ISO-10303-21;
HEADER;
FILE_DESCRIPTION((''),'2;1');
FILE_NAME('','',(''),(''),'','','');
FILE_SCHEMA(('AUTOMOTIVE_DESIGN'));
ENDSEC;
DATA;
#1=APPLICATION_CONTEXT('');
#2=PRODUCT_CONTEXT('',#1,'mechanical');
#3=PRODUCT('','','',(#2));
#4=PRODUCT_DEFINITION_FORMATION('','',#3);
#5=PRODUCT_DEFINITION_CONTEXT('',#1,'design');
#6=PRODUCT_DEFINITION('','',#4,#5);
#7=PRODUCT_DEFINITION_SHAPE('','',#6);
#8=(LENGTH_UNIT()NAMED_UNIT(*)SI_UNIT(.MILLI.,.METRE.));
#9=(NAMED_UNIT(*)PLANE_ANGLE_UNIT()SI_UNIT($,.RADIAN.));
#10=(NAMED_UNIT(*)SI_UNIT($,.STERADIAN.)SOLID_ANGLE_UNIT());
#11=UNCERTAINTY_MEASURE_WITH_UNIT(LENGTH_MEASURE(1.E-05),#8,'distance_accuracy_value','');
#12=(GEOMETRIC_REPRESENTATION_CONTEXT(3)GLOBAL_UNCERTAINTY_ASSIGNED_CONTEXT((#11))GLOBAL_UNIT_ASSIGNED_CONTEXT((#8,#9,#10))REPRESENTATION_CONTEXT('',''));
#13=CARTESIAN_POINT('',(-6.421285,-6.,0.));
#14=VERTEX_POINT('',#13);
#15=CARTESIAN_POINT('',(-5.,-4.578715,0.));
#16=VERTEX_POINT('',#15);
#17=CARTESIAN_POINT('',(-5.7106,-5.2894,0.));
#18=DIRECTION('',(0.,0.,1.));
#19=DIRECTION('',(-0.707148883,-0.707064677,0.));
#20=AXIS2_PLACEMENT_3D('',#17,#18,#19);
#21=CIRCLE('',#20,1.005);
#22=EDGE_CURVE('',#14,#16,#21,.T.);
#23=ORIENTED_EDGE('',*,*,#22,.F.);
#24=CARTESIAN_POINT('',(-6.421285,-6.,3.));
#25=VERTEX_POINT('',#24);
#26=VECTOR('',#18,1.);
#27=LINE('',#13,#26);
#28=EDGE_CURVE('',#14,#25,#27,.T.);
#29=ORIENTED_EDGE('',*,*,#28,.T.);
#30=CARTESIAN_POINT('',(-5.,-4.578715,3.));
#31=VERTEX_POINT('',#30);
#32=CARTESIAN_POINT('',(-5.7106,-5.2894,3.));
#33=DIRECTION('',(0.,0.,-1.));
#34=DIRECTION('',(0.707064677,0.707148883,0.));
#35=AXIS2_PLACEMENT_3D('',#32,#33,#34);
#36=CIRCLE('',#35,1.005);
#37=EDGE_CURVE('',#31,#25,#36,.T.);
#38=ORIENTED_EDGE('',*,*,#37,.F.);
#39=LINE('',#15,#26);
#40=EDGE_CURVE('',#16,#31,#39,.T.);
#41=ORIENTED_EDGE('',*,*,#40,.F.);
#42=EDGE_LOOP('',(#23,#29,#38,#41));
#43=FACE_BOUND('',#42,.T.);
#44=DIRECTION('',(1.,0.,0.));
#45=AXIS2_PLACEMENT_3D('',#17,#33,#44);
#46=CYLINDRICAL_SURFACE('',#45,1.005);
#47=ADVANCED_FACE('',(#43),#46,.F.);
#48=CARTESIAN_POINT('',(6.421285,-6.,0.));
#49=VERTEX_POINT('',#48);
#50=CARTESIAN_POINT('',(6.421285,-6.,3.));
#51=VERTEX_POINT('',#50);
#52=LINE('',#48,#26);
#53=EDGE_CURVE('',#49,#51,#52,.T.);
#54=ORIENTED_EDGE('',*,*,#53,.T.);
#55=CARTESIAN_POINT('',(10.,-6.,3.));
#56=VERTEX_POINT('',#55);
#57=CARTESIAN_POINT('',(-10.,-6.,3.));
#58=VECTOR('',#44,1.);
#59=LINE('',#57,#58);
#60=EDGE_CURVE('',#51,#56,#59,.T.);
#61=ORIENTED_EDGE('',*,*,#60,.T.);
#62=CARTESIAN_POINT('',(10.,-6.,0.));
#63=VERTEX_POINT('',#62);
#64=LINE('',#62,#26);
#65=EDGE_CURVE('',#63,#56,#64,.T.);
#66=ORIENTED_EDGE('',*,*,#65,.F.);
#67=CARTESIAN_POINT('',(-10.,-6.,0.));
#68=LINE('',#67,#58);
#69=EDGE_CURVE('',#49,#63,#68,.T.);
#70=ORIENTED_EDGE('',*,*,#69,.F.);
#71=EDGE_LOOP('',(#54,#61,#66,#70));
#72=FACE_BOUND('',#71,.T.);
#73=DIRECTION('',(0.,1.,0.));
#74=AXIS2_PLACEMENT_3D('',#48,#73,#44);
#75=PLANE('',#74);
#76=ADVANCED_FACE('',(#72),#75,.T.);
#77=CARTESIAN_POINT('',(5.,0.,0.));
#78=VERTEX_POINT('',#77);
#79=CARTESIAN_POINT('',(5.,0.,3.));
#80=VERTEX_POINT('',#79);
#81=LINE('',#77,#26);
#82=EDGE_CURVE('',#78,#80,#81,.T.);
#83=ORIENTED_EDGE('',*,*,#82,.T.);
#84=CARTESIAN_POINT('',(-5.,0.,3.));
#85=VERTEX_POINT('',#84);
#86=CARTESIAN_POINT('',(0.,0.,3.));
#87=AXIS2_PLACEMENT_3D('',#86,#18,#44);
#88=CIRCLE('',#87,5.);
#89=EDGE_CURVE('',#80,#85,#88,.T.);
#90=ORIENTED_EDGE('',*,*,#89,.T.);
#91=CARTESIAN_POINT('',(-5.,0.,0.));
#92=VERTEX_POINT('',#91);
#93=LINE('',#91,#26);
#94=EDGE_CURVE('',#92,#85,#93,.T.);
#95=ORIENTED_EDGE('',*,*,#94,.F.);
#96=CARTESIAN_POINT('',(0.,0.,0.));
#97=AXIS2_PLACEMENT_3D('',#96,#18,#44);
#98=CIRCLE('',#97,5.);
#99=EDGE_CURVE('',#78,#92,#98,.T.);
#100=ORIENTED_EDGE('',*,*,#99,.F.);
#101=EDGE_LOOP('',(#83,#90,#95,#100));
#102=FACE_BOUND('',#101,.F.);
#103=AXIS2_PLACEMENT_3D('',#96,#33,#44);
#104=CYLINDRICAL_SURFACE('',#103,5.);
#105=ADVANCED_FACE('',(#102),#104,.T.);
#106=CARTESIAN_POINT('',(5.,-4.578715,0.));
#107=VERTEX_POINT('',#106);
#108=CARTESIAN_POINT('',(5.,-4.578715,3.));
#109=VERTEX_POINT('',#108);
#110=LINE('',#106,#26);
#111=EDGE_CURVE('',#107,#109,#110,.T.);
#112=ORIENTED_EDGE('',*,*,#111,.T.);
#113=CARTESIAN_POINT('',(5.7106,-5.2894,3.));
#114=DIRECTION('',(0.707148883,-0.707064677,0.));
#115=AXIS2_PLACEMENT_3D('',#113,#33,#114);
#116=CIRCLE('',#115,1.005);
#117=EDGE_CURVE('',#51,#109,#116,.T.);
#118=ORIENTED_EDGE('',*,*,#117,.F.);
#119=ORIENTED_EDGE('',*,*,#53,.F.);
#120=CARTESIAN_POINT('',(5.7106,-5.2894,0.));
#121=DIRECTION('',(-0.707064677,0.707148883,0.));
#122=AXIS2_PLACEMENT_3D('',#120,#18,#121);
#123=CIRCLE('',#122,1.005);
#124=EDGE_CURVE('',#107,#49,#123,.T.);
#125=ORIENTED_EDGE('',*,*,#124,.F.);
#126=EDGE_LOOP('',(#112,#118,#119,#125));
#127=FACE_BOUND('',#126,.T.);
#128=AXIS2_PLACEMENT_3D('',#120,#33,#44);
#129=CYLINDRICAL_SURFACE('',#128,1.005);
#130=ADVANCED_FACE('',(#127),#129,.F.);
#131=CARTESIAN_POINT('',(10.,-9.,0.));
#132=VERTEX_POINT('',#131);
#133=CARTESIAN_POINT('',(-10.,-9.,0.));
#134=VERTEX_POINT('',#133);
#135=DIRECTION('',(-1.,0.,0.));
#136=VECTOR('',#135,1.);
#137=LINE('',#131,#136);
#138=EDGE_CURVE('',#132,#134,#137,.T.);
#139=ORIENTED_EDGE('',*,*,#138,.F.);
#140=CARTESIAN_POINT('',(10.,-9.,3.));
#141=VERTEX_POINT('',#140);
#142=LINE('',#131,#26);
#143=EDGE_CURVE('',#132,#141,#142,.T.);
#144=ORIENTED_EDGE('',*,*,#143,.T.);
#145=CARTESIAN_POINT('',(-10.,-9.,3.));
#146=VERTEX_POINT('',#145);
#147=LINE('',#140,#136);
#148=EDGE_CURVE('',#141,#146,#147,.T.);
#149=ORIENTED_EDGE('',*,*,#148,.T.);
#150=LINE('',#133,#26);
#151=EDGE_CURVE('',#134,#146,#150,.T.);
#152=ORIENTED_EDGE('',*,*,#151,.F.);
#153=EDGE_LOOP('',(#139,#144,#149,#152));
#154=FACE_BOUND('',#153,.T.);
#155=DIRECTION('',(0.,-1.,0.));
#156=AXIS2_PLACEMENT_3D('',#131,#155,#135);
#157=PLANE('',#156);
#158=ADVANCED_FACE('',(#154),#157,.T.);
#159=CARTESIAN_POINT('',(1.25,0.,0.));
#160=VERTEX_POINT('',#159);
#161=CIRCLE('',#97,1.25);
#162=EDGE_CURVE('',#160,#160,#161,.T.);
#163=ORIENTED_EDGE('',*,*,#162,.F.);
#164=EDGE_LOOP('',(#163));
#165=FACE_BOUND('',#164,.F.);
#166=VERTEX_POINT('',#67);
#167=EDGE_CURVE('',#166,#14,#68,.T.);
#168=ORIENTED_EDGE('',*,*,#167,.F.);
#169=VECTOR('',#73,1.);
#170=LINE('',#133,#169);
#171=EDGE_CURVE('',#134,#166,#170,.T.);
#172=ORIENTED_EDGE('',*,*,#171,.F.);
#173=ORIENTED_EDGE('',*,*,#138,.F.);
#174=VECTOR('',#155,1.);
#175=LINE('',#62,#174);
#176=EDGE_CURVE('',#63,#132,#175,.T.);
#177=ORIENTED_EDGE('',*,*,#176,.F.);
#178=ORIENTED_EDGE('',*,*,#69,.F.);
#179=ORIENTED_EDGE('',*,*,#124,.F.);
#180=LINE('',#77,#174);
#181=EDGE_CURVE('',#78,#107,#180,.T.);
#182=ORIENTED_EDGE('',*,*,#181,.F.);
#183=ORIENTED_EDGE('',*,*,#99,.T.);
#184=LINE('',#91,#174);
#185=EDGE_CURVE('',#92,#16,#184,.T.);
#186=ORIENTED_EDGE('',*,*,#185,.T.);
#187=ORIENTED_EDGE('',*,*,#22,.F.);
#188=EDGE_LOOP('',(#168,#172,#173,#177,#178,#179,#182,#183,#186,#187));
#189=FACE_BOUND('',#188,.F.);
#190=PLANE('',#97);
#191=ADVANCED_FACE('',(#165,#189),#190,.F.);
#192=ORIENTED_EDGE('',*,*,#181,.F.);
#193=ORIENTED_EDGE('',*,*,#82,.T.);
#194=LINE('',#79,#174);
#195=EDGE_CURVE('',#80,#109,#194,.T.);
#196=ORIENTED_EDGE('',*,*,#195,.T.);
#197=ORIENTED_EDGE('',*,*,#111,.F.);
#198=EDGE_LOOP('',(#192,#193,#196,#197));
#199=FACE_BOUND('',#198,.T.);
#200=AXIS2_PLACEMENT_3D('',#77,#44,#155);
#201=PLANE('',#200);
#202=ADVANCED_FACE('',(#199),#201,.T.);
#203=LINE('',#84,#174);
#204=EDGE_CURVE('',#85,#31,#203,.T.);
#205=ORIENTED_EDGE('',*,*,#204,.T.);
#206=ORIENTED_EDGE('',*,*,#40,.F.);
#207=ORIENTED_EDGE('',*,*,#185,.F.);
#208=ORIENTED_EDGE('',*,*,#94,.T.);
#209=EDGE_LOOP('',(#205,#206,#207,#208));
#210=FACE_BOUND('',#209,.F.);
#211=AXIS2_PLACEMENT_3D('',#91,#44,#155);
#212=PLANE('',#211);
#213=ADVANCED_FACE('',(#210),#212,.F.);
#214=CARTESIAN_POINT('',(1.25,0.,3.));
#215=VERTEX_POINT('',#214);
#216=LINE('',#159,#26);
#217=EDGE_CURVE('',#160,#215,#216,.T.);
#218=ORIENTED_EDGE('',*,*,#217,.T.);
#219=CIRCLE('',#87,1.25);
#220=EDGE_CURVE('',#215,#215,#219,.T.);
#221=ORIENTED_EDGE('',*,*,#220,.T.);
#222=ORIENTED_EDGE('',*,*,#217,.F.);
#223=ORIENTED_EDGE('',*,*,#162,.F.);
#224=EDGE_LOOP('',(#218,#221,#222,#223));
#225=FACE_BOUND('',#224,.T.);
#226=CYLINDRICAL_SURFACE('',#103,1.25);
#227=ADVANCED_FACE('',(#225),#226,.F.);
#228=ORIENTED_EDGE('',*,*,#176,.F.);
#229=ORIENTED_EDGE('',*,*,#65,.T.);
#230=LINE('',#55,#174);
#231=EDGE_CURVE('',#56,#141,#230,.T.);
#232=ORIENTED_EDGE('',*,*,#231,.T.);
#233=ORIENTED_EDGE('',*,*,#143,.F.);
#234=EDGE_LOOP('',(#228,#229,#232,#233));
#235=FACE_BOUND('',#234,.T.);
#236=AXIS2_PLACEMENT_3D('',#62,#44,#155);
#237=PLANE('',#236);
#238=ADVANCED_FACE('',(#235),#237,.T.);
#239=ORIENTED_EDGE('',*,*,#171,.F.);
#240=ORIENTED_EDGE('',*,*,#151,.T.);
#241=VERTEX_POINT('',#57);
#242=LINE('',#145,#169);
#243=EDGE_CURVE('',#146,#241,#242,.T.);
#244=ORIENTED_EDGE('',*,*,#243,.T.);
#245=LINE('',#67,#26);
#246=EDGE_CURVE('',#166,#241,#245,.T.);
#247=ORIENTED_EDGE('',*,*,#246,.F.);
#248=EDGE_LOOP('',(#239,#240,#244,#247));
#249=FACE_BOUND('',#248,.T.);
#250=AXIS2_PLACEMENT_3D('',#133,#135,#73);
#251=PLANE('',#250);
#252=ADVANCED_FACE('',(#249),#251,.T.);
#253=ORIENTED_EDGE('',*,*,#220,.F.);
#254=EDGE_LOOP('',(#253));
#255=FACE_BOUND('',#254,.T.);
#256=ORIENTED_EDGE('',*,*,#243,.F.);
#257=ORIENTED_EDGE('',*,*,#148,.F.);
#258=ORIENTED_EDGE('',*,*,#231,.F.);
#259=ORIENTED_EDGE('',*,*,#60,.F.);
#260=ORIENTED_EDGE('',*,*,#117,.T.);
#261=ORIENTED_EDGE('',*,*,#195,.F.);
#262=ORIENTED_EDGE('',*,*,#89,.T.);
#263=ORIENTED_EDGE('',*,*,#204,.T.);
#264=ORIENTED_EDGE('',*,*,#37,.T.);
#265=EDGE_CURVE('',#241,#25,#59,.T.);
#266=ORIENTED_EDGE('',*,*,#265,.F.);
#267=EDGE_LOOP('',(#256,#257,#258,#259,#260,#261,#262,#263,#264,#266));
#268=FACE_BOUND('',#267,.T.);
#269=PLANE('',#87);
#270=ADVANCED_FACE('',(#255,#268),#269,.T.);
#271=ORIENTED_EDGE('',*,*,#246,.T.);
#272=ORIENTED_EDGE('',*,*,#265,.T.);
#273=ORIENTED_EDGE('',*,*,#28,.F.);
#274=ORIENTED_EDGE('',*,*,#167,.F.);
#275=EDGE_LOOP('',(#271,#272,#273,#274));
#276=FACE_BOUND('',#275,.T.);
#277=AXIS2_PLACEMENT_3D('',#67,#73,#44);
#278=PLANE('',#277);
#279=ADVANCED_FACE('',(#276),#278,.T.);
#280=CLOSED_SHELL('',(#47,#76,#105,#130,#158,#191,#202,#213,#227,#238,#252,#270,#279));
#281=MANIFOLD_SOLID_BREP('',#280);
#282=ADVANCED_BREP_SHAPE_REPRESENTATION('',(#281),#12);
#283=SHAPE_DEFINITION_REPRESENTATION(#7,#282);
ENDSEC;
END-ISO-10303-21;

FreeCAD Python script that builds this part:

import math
import FreeCAD as App
import Part
import Sketcher

V = App.Vector

doc = App.newDocument("Part")
params = doc.addObject("Spreadsheet::Sheet", "Params")
for row, (alias, value) in enumerate([
    ("sketch1_radius", "5 mm"),
    ("sketch1_diameter", "2.5 mm"),
    ("sketch1_width", "20 mm"),
    ("sketch1_height", "3 mm"),
    ("pad1_length", "3 mm"),
], start=1):
    params.set(f"A{row}", alias)
    params.set(f"B{row}", "=" + value)
    params.setAlias(f"B{row}", alias)

body = doc.addObject("PartDesign::Body", "Body")

sketch1 = doc.addObject("Sketcher::SketchObject", "Sketch")
body.addObject(sketch1)
sketch1.AttachmentSupport = (doc.XY_Plane, [""])
sketch1.MapMode = "FlatFace"
sketch1.addGeometry([
    Part.ArcOfCircle(Part.Circle(V(0, 0, 0), V(0, 0, 1), 5), math.radians(0), math.radians(180)),
    Part.LineSegment(V(-5, 0, 0), V(-5, -4.578715, 0)),
    Part.ArcOfCircle(Part.Circle(V(-5.7106, -5.2894, 0), V(0, 0, 1), 1.005), math.radians(-135.003412), math.radians(45.003412)),
    Part.LineSegment(V(-6.421285, -6, 0), V(-10, -6, 0)),
    Part.LineSegment(V(-10, -6, 0), V(-10, -9, 0)),
    Part.LineSegment(V(-10, -9, 0), V(10, -9, 0)),
    Part.LineSegment(V(10, -9, 0), V(10, -6, 0)),
    Part.LineSegment(V(10, -6, 0), V(6.421285, -6, 0)),
    Part.ArcOfCircle(Part.Circle(V(5.7106, -5.2894, 0), V(0, 0, 1), 1.005), math.radians(134.996588), math.radians(315.003412)),
    Part.LineSegment(V(5, -4.578715, 0), V(5, 0, 0)),
    Part.Circle(V(0, 0, 0), V(0, 0, 1), 1.25),
], False)
sketch1.addConstraint([
    Sketcher.Constraint("Tangent", 0, 2, 1, 1),
    Sketcher.Constraint("Coincident", 1, 2, 2, 2),
    Sketcher.Constraint("Coincident", 2, 1, 3, 1),
    Sketcher.Constraint("Coincident", 3, 2, 4, 1),
    Sketcher.Constraint("Coincident", 4, 2, 5, 1),
    Sketcher.Constraint("Coincident", 5, 2, 6, 1),
    Sketcher.Constraint("Coincident", 6, 2, 7, 1),
    Sketcher.Constraint("Coincident", 7, 2, 8, 2),
    Sketcher.Constraint("Coincident", 8, 1, 9, 1),
    Sketcher.Constraint("Tangent", 9, 2, 0, 1),
    Sketcher.Constraint("Vertical", 1),
    Sketcher.Constraint("Horizontal", 3),
    Sketcher.Constraint("Vertical", 4),
    Sketcher.Constraint("Horizontal", 5),
    Sketcher.Constraint("Vertical", 6),
    Sketcher.Constraint("Horizontal", 7),
    Sketcher.Constraint("Vertical", 9),
    Sketcher.Constraint("Coincident", 0, 3, -1, 1),
    Sketcher.Constraint("Coincident", 10, 3, -1, 1),
    Sketcher.Constraint("Equal", 2, 8),
    Sketcher.Constraint("Symmetric", 2, 3, 8, 3, -2),
    Sketcher.Constraint("Symmetric", 3, 2, 6, 2, -2),
    Sketcher.Constraint("Radius", 0, 5.0),
    Sketcher.Constraint("Diameter", 10, 2.5),
    Sketcher.Constraint("DistanceX", 5, 1, 5, 2, 20.0),
    Sketcher.Constraint("DistanceY", 4, 2, 4, 1, 3.0),
    Sketcher.Constraint("DistanceY", 2, 1, -1, 1, 6.0),
    Sketcher.Constraint("Radius", 2, 1.005),
    Sketcher.Constraint("DistanceX", 3, 2, 3, 1, 3.5787),
    Sketcher.Constraint("DistanceX", 2, 3, -1, 1, 5.7106),
])
sketch1.setExpression("Constraints[22]", "Params.sketch1_radius")
sketch1.setExpression("Constraints[23]", "Params.sketch1_diameter")
sketch1.setExpression("Constraints[24]", "Params.sketch1_width")
sketch1.setExpression("Constraints[25]", "Params.sketch1_height")
pad1 = doc.addObject("PartDesign::Pad", "Pad")
body.addObject(pad1)
pad1.Profile = sketch1
pad1.setExpression("Length", "Params.pad1_length")

doc.recompute()
